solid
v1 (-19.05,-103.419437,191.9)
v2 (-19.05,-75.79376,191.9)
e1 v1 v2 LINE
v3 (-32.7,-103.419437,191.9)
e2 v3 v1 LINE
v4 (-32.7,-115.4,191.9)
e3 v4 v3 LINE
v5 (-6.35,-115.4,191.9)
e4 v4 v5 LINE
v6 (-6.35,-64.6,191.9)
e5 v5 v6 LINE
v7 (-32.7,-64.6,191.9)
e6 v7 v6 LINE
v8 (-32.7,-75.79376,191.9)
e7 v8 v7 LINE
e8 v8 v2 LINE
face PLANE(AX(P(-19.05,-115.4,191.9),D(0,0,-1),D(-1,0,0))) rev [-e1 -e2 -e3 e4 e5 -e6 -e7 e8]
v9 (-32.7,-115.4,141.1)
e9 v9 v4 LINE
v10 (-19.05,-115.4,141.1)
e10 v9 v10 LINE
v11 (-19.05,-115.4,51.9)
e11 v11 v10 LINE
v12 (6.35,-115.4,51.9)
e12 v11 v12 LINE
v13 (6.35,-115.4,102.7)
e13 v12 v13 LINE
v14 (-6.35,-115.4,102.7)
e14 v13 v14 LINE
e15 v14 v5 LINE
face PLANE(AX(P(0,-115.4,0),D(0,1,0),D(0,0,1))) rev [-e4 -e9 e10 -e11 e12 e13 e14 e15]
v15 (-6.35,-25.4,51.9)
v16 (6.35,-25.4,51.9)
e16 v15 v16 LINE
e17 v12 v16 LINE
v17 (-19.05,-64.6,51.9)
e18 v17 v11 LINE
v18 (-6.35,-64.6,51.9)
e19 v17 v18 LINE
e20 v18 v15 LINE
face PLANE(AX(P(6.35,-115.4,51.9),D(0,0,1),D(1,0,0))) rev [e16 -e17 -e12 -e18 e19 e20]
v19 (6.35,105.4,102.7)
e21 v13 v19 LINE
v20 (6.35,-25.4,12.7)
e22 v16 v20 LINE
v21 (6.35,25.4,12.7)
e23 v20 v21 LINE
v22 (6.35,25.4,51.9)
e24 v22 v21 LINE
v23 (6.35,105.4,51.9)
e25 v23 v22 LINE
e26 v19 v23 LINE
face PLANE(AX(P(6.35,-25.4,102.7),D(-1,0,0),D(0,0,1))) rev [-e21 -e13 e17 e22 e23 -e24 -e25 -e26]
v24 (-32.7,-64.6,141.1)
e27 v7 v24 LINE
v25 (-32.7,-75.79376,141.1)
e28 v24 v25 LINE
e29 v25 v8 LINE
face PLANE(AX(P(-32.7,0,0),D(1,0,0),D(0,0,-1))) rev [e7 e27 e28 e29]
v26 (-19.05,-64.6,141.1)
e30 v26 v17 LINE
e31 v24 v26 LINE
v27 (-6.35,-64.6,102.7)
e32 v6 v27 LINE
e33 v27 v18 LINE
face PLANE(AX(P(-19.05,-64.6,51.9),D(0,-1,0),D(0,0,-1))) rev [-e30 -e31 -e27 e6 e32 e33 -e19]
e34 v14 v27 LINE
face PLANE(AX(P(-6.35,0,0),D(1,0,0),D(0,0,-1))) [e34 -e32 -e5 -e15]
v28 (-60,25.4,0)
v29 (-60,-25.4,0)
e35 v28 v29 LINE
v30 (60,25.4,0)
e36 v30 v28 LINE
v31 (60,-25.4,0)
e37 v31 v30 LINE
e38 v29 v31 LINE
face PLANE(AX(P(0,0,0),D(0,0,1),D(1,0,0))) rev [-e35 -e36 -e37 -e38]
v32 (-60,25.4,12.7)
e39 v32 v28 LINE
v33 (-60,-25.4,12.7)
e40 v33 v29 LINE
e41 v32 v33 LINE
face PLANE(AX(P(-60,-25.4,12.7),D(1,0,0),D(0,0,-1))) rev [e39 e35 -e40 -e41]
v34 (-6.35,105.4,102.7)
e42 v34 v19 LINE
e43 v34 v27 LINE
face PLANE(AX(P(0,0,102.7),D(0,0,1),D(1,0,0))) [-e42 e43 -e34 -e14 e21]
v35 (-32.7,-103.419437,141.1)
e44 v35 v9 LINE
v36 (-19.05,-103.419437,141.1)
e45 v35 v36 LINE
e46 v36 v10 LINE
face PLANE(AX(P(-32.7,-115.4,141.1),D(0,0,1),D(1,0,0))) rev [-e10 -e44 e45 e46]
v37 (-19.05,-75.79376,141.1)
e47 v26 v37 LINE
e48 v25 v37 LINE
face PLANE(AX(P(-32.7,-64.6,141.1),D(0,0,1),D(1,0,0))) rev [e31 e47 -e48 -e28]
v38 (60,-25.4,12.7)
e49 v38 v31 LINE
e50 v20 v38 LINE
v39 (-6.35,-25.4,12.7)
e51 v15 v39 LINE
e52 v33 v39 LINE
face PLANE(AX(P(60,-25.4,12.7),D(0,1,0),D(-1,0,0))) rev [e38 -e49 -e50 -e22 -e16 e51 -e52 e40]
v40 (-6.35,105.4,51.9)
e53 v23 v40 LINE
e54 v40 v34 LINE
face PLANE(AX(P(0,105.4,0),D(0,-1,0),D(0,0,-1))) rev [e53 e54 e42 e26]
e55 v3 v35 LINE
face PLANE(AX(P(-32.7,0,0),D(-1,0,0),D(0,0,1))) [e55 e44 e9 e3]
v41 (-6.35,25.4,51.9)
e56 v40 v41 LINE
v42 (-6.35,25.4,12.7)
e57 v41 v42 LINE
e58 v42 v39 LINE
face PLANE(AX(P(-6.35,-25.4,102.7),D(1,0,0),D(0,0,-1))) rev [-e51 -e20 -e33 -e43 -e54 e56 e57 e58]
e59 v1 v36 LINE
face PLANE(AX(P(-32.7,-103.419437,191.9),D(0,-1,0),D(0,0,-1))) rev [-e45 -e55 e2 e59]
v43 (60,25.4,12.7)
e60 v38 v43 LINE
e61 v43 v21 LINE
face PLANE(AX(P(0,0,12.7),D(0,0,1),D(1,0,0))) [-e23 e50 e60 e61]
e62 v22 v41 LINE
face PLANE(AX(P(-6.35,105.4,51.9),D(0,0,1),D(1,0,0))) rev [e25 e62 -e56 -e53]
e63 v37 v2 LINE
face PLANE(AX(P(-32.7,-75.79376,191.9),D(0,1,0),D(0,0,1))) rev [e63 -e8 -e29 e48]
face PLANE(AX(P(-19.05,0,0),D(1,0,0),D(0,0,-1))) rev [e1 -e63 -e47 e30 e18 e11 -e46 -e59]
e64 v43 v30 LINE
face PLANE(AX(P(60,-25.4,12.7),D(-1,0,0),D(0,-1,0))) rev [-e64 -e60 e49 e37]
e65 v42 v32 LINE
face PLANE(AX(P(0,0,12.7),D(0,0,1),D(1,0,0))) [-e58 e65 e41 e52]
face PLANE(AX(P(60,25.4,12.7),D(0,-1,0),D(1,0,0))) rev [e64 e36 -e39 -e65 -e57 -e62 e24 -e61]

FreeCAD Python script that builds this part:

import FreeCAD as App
import Part
import Sketcher


def add_polygon(sketch, points):
    """Adds a closed chain of lines whose ends are joined by coincident constraints."""
    first, n = sketch.GeometryCount, len(points)
    for a, b in zip(points, points[1:] + points[:1]):
        sketch.addGeometry(Part.LineSegment(App.Vector(*a, 0), App.Vector(*b, 0)), False)
    for i in range(n):
        sketch.addConstraint(Sketcher.Constraint("Coincident", first + i, 2, first + (i + 1) % n, 1))

doc = App.newDocument("Part")
body = doc.addObject("PartDesign::Body", "Body")

sketch1 = body.newObject("Sketcher::SketchObject", "Sketch")
sketch1.AttachmentSupport = (doc.getObject("XY_Plane"), [""])
sketch1.MapMode = "FlatFace"
add_polygon(sketch1, [(-60, 25.4), (-60, -25.4), (60, -25.4), (60, 25.4)])
sketch1.addConstraint([
    Sketcher.Constraint("Vertical", 0),
    Sketcher.Constraint("Horizontal", 1),
    Sketcher.Constraint("Vertical", 2),
    Sketcher.Constraint("Horizontal", 3),
    Sketcher.Constraint("Symmetric", 0, 2, 2, 2, -1, 1),
    Sketcher.Constraint("DistanceX", 1, 1, 1, 2, 120.0),
    Sketcher.Constraint("DistanceY", 0, 2, 0, 1, 50.8),
])
pad1 = body.newObject("PartDesign::Pad", "Pad")
pad1.Profile = sketch1
pad1.Length = 12.7

sketch2 = body.newObject("Sketcher::SketchObject", "Sketch001")
sketch2.AttachmentSupport = (doc.getObject("XY_Plane"), [""])
sketch2.MapMode = "FlatFace"
sketch2.AttachmentOffset = App.Placement(App.Vector(0, 0, 12.7), App.Rotation())
add_polygon(sketch2, [(-6.35, 25.4), (-6.35, -25.4), (6.35, -25.4), (6.35, 25.4)])
sketch2.addConstraint([
    Sketcher.Constraint("Vertical", 0),
    Sketcher.Constraint("Horizontal", 1),
    Sketcher.Constraint("Vertical", 2),
    Sketcher.Constraint("Horizontal", 3),
    Sketcher.Constraint("Symmetric", 0, 2, 2, 2, -1, 1),
    Sketcher.Constraint("DistanceX", 1, 1, 1, 2, 12.7),
    Sketcher.Constraint("DistanceY", 0, 2, 0, 1, 50.8),
])
pad2 = body.newObject("PartDesign::Pad", "Pad001")
pad2.Profile = sketch2
pad2.Length = 90

sketch3 = body.newObject("Sketcher::SketchObject", "Sketch002")
sketch3.AttachmentSupport = (doc.getObject("XZ_Plane"), [""])
sketch3.MapMode = "FlatFace"
sketch3.AttachmentOffset = App.Placement(App.Vector(0, 0, 25.4), App.Rotation())
add_polygon(sketch3, [(-6.35, 102.7), (-6.35, 51.9), (6.35, 51.9), (6.35, 102.7)])
sketch3.addConstraint([
    Sketcher.Constraint("Vertical", 0),
    Sketcher.Constraint("Horizontal", 1),
    Sketcher.Constraint("Vertical", 2),
    Sketcher.Constraint("Horizontal", 3),
    Sketcher.Constraint("DistanceX", 1, 1, 1, 2, 12.7),
    Sketcher.Constraint("DistanceY", 0, 2, 0, 1, 50.8),
    Sketcher.Constraint("DistanceY", -1, 1, 0, 2, 51.9),
    Sketcher.Constraint("DistanceX", 0, 2, -1, 1, 6.35),
])
pad3 = body.newObject("PartDesign::Pad", "Pad002")
pad3.Profile = sketch3
pad3.Length = 90

sketch4 = body.newObject("Sketcher::SketchObject", "Sketch003")
sketch4.AttachmentSupport = (doc.getObject("YZ_Plane"), [""])
sketch4.MapMode = "FlatFace"
sketch4.AttachmentOffset = App.Placement(App.Vector(0, 0, -6.35), App.Rotation())
add_polygon(sketch4, [(-64.6, 51.9), (-115.4, 51.9), (-115.4, 191.9), (-64.6, 191.9)])
sketch4.addConstraint([
    Sketcher.Constraint("Horizontal", 0),
    Sketcher.Constraint("Vertical", 1),
    Sketcher.Constraint("Horizontal", 2),
    Sketcher.Constraint("Vertical", 3),
    Sketcher.Constraint("DistanceY", 1, 1, 1, 2, 140.0),
    Sketcher.Constraint("DistanceX", 0, 2, 0, 1, 50.8),
    Sketcher.Constraint("DistanceX", 0, 2, -1, 1, 115.4),
    Sketcher.Constraint("DistanceY", -1, 1, 0, 2, 51.9),
])
pad4 = body.newObject("PartDesign::Pad", "Pad003")
pad4.Profile = sketch4
pad4.Length = 12.7
pad4.Reversed = True

sketch5 = body.newObject("Sketcher::SketchObject", "Sketch004")
sketch5.AttachmentSupport = (doc.getObject("YZ_Plane"), [""])
sketch5.MapMode = "FlatFace"
sketch5.AttachmentOffset = App.Placement(App.Vector(0, 0, -19.05), App.Rotation())
add_polygon(sketch5, [(-103.419437, 141.1), (-115.4, 141.1), (-115.4, 191.9), (-103.419437, 191.9)])
add_polygon(sketch5, [(-64.6, 141.1), (-75.79376, 141.1), (-75.79376, 191.9), (-64.6, 191.9)])
sketch5.addConstraint([
    Sketcher.Constraint("Horizontal", 0),
    Sketcher.Constraint("Vertical", 1),
    Sketcher.Constraint("Horizontal", 2),
    Sketcher.Constraint("Vertical", 3),
    Sketcher.Constraint("Horizontal", 4),
    Sketcher.Constraint("Vertical", 5),
    Sketcher.Constraint("Horizontal", 6),
    Sketcher.Constraint("Vertical", 7),
    Sketcher.Constraint("Horizontal", 3, 2, 4, 2),
    Sketcher.Constraint("Horizontal", 2, 2, 5, 2),
    Sketcher.Constraint("DistanceY", 1, 1, 1, 2, 50.8),
    Sketcher.Constraint("DistanceX", 0, 2, -1, 1, 115.4),
    Sketcher.Constraint("DistanceY", -1, 1, 0, 2, 141.1),
    Sketcher.Constraint("DistanceX", 6, 2, -1, 1, 64.6),
    Sketcher.Constraint("DistanceX", 4, 2, 4, 1, 11.19376),
    Sketcher.Constraint("DistanceX", 0, 2, 0, 1, 11.980563),
])
pad5 = body.newObject("PartDesign::Pad", "Pad004")
pad5.Profile = sketch5
pad5.Length = 13.65
pad5.Reversed = True

sketch6 = body.newObject("Sketcher::SketchObject", "Sketch005")
sketch6.AttachmentSupport = (doc.getObject("XZ_Plane"), [""])
sketch6.MapMode = "FlatFace"
sketch6.AttachmentOffset = App.Placement(App.Vector(0, 0, -25.4), App.Rotation())
add_polygon(sketch6, [(-6.35, 51.9), (-6.35, 102.7), (6.35, 102.7), (6.35, 51.9)])
sketch6.addConstraint([
    Sketcher.Constraint("Vertical", 0),
    Sketcher.Constraint("Horizontal", 1),
    Sketcher.Constraint("Vertical", 2),
    Sketcher.Constraint("Horizontal", 3),
    Sketcher.Constraint("DistanceX", 1, 1, 1, 2, 12.7),
    Sketcher.Constraint("DistanceY", 0, 1, 0, 2, 50.8),
    Sketcher.Constraint("DistanceY", -1, 1, 0, 2, 102.7),
    Sketcher.Constraint("DistanceX", 0, 2, -1, 1, 6.35),
])
pad6 = body.newObject("PartDesign::Pad", "Pad005")
pad6.Profile = sketch6
pad6.Length = 80
pad6.Reversed = True

doc.recompute()
